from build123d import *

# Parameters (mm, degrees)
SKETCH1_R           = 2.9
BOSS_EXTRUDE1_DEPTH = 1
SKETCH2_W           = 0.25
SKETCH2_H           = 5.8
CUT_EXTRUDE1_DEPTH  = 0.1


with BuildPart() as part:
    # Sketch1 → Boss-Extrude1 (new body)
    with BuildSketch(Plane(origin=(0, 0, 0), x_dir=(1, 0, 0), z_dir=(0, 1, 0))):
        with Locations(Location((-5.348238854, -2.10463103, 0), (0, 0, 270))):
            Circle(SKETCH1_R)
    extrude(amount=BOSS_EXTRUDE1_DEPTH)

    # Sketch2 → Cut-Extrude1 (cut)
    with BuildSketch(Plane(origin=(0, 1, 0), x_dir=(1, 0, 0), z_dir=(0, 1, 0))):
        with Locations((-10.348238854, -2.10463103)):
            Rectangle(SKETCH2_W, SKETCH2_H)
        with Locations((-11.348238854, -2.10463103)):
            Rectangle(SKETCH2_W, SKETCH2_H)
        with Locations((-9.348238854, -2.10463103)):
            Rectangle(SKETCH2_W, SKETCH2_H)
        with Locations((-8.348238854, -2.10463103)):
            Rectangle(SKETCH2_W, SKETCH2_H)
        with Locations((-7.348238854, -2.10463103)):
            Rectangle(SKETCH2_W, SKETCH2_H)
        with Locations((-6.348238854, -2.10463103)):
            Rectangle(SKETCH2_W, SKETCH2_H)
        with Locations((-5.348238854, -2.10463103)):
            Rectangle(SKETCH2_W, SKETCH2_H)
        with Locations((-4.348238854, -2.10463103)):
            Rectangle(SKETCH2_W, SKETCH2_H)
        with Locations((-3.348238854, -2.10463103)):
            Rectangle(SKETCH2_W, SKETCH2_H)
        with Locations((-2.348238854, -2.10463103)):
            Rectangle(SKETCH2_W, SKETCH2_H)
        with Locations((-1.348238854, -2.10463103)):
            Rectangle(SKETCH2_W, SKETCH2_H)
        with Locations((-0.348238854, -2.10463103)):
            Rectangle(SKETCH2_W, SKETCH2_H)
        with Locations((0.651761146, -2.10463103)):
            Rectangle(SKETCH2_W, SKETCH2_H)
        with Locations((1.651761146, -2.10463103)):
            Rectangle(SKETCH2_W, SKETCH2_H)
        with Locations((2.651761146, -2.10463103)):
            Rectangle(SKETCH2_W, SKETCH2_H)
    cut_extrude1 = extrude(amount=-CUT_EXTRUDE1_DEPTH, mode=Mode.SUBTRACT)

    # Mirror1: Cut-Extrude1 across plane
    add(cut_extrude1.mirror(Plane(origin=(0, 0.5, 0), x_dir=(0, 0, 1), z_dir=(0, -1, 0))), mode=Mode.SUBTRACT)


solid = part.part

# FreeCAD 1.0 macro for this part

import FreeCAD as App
import Part
import Sketcher

doc = App.newDocument("Part")
params = doc.addObject("Spreadsheet::Sheet", "Params")
for row, (alias, value) in enumerate([
    ("sketch1_diameter", "5.8 mm"),
    ("pad1_length", "1 mm"),
    ("sketch2_height", "5.8 mm"),
    ("sketch2_width", "0.25 mm"),
    ("pocket1_length", "0.1 mm"),
], start=1):
    params.set(f"A{row}", alias)
    params.set(f"B{row}", "=" + value)
    params.setAlias(f"B{row}", alias)

body = doc.addObject("PartDesign::Body", "Body")

# Sketch on XZ plane
sketch1 = body.newObject("Sketcher::SketchObject", "Sketch")
sketch1.AttachmentSupport = (doc.getObject("XZ_Plane"), [""])
sketch1.MapMode = "FlatFace"
sketch1.addGeometry(Part.Circle(App.Vector(-5.3, 2.1, 0), App.Vector(0, 0, 1), 2.9), False)
sketch1.addConstraint([
    Sketcher.Constraint("Diameter", 0, 5.8),
    Sketcher.Constraint("DistanceX", 0, 3, -1, 1, 5.348239),
    Sketcher.Constraint("DistanceY", -1, 1, 0, 3, 2.104631),
])
sketch1.setExpression("Constraints[0]", "Params.sketch1_diameter")
pad1 = body.newObject("PartDesign::Pad", "Pad")
pad1.Profile = sketch1
pad1.setExpression("Length", "Params.pad1_length")
pad1.Reversed = True

# Sketch on XZ plane
sketch2 = body.newObject("Sketcher::SketchObject", "Sketch001")
sketch2.AttachmentSupport = (doc.getObject("XZ_Plane"), [""])
sketch2.MapMode = "FlatFace"
sketch2.AttachmentOffset = App.Placement(App.Vector(0, 0, -1), App.Rotation())
sketch2.addGeometry([
    Part.LineSegment(App.Vector(-10.47, -0.8, 0), App.Vector(-10.47, 5, 0)),  # 0
    Part.LineSegment(App.Vector(-10.47, 5, 0), App.Vector(-10.22, 5, 0)),  # 1
    Part.LineSegment(App.Vector(-10.22, 5, 0), App.Vector(-10.22, -0.8, 0)),  # 2
    Part.LineSegment(App.Vector(-10.22, -0.8, 0), App.Vector(-10.47, -0.8, 0)),  # 3
    Part.LineSegment(App.Vector(-11.47, -0.8, 0), App.Vector(-11.47, 5, 0)),  # 4
    Part.LineSegment(App.Vector(-11.47, 5, 0), App.Vector(-11.22, 5, 0)),  # 5
    Part.LineSegment(App.Vector(-11.22, 5, 0), App.Vector(-11.22, -0.8, 0)),  # 6
    Part.LineSegment(App.Vector(-11.22, -0.8, 0), App.Vector(-11.47, -0.8, 0)),  # 7
    Part.LineSegment(App.Vector(-9.47, -0.8, 0), App.Vector(-9.47, 5, 0)),  # 8
    Part.LineSegment(App.Vector(-9.47, 5, 0), App.Vector(-9.22, 5, 0)),  # 9
    Part.LineSegment(App.Vector(-9.22, 5, 0), App.Vector(-9.22, -0.8, 0)),  # 10
    Part.LineSegment(App.Vector(-9.22, -0.8, 0), App.Vector(-9.47, -0.8, 0)),  # 11
    Part.LineSegment(App.Vector(-8.47, -0.8, 0), App.Vector(-8.47, 5, 0)),  # 12
    Part.LineSegment(App.Vector(-8.47, 5, 0), App.Vector(-8.22, 5, 0)),  # 13
    Part.LineSegment(App.Vector(-8.22, 5, 0), App.Vector(-8.22, -0.8, 0)),  # 14
    Part.LineSegment(App.Vector(-8.22, -0.8, 0), App.Vector(-8.47, -0.8, 0)),  # 15
    Part.LineSegment(App.Vector(-7.47, -0.8, 0), App.Vector(-7.47, 5, 0)),  # 16
    Part.LineSegment(App.Vector(-7.47, 5, 0), App.Vector(-7.22, 5, 0)),  # 17
    Part.LineSegment(App.Vector(-7.22, 5, 0), App.Vector(-7.22, -0.8, 0)),  # 18
    Part.LineSegment(App.Vector(-7.22, -0.8, 0), App.Vector(-7.47, -0.8, 0)),  # 19
    Part.LineSegment(App.Vector(-6.47, -0.8, 0), App.Vector(-6.47, 5, 0)),  # 20
    Part.LineSegment(App.Vector(-6.47, 5, 0), App.Vector(-6.22, 5, 0)),  # 21
    Part.LineSegment(App.Vector(-6.22, 5, 0), App.Vector(-6.22, -0.8, 0)),  # 22
    Part.LineSegment(App.Vector(-6.22, -0.8, 0), App.Vector(-6.47, -0.8, 0)),  # 23
    Part.LineSegment(App.Vector(-5.47, -0.8, 0), App.Vector(-5.47, 5, 0)),  # 24
    Part.LineSegment(App.Vector(-5.47, 5, 0), App.Vector(-5.22, 5, 0)),  # 25
    Part.LineSegment(App.Vector(-5.22, 5, 0), App.Vector(-5.22, -0.8, 0)),  # 26
    Part.LineSegment(App.Vector(-5.22, -0.8, 0), App.Vector(-5.47, -0.8, 0)),  # 27
    Part.LineSegment(App.Vector(-4.47, -0.8, 0), App.Vector(-4.47, 5, 0)),  # 28
    Part.LineSegment(App.Vector(-4.47, 5, 0), App.Vector(-4.22, 5, 0)),  # 29
    Part.LineSegment(App.Vector(-4.22, 5, 0), App.Vector(-4.22, -0.8, 0)),  # 30
    Part.LineSegment(App.Vector(-4.22, -0.8, 0), App.Vector(-4.47, -0.8, 0)),  # 31
    Part.LineSegment(App.Vector(-3.47, -0.8, 0), App.Vector(-3.47, 5, 0)),  # 32
    Part.LineSegment(App.Vector(-3.47, 5, 0), App.Vector(-3.22, 5, 0)),  # 33
    Part.LineSegment(App.Vector(-3.22, 5, 0), App.Vector(-3.22, -0.8, 0)),  # 34
    Part.LineSegment(App.Vector(-3.22, -0.8, 0), App.Vector(-3.47, -0.8, 0)),  # 35
    Part.LineSegment(App.Vector(-2.47, -0.8, 0), App.Vector(-2.47, 5, 0)),  # 36
    Part.LineSegment(App.Vector(-2.47, 5, 0), App.Vector(-2.22, 5, 0)),  # 37
    Part.LineSegment(App.Vector(-2.22, 5, 0), App.Vector(-2.22, -0.8, 0)),  # 38
    Part.LineSegment(App.Vector(-2.22, -0.8, 0), App.Vector(-2.47, -0.8, 0)),  # 39
    Part.LineSegment(App.Vector(-1.47, -0.8, 0), App.Vector(-1.47, 5, 0)),  # 40
    Part.LineSegment(App.Vector(-1.47, 5, 0), App.Vector(-1.22, 5, 0)),  # 41
    Part.LineSegment(App.Vector(-1.22, 5, 0), App.Vector(-1.22, -0.8, 0)),  # 42
    Part.LineSegment(App.Vector(-1.22, -0.8, 0), App.Vector(-1.47, -0.8, 0)),  # 43
    Part.LineSegment(App.Vector(-0.47, -0.8, 0), App.Vector(-0.47, 5, 0)),  # 44
    Part.LineSegment(App.Vector(-0.47, 5, 0), App.Vector(-0.22, 5, 0)),  # 45
    Part.LineSegment(App.Vector(-0.22, 5, 0), App.Vector(-0.22, -0.8, 0)),  # 46
    Part.LineSegment(App.Vector(-0.22, -0.8, 0), App.Vector(-0.47, -0.8, 0)),  # 47
    Part.LineSegment(App.Vector(0.53, -0.8, 0), App.Vector(0.53, 5, 0)),  # 48
    Part.LineSegment(App.Vector(0.53, 5, 0), App.Vector(0.78, 5, 0)),  # 49
    Part.LineSegment(App.Vector(0.78, 5, 0), App.Vector(0.78, -0.8, 0)),  # 50
    Part.LineSegment(App.Vector(0.78, -0.8, 0), App.Vector(0.53, -0.8, 0)),  # 51
    Part.LineSegment(App.Vector(1.53, -0.8, 0), App.Vector(1.53, 5, 0)),  # 52
    Part.LineSegment(App.Vector(1.53, 5, 0), App.Vector(1.78, 5, 0)),  # 53
    Part.LineSegment(App.Vector(1.78, 5, 0), App.Vector(1.78, -0.8, 0)),  # 54
    Part.LineSegment(App.Vector(1.78, -0.8, 0), App.Vector(1.53, -0.8, 0)),  # 55
    Part.LineSegment(App.Vector(2.53, -0.8, 0), App.Vector(2.53, 5, 0)),  # 56
    Part.LineSegment(App.Vector(2.53, 5, 0), App.Vector(2.78, 5, 0)),  # 57
    Part.LineSegment(App.Vector(2.78, 5, 0), App.Vector(2.78, -0.8, 0)),  # 58
    Part.LineSegment(App.Vector(2.78, -0.8, 0), App.Vector(2.53, -0.8, 0)),  # 59
], False)
sketch2.addConstraint([
    Sketcher.Constraint("Coincident", 0, 2, 1, 1),
    Sketcher.Constraint("Coincident", 1, 2, 2, 1),
    Sketcher.Constraint("Coincident", 2, 2, 3, 1),
    Sketcher.Constraint("Coincident", 3, 2, 0, 1),
    Sketcher.Constraint("Coincident", 4, 2, 5, 1),
    Sketcher.Constraint("Coincident", 5, 2, 6, 1),
    Sketcher.Constraint("Coincident", 6, 2, 7, 1),
    Sketcher.Constraint("Coincident", 7, 2, 4, 1),
    Sketcher.Constraint("Coincident", 8, 2, 9, 1),
    Sketcher.Constraint("Coincident", 9, 2, 10, 1),
    Sketcher.Constraint("Coincident", 10, 2, 11, 1),
    Sketcher.Constraint("Coincident", 11, 2, 8, 1),
    Sketcher.Constraint("Coincident", 12, 2, 13, 1),
    Sketcher.Constraint("Coincident", 13, 2, 14, 1),
    Sketcher.Constraint("Coincident", 14, 2, 15, 1),
    Sketcher.Constraint("Coincident", 15, 2, 12, 1),
    Sketcher.Constraint("Coincident", 16, 2, 17, 1),
    Sketcher.Constraint("Coincident", 17, 2, 18, 1),
    Sketcher.Constraint("Coincident", 18, 2, 19, 1),
    Sketcher.Constraint("Coincident", 19, 2, 16, 1),
    Sketcher.Constraint("Coincident", 20, 2, 21, 1),
    Sketcher.Constraint("Coincident", 21, 2, 22, 1),
    Sketcher.Constraint("Coincident", 22, 2, 23, 1),
    Sketcher.Constraint("Coincident", 23, 2, 20, 1),
    Sketcher.Constraint("Coincident", 24, 2, 25, 1),
    Sketcher.Constraint("Coincident", 25, 2, 26, 1),
    Sketcher.Constraint("Coincident", 26, 2, 27, 1),
    Sketcher.Constraint("Coincident", 27, 2, 24, 1),
    Sketcher.Constraint("Coincident", 28, 2, 29, 1),
    Sketcher.Constraint("Coincident", 29, 2, 30, 1),
    Sketcher.Constraint("Coincident", 30, 2, 31, 1),
    Sketcher.Constraint("Coincident", 31, 2, 28, 1),
    Sketcher.Constraint("Coincident", 32, 2, 33, 1),
    Sketcher.Constraint("Coincident", 33, 2, 34, 1),
    Sketcher.Constraint("Coincident", 34, 2, 35, 1),
    Sketcher.Constraint("Coincident", 35, 2, 32, 1),
    Sketcher.Constraint("Coincident", 36, 2, 37, 1),
    Sketcher.Constraint("Coincident", 37, 2, 38, 1),
    Sketcher.Constraint("Coincident", 38, 2, 39, 1),
    Sketcher.Constraint("Coincident", 39, 2, 36, 1),
    Sketcher.Constraint("Coincident", 40, 2, 41, 1),
    Sketcher.Constraint("Coincident", 41, 2, 42, 1),
    Sketcher.Constraint("Coincident", 42, 2, 43, 1),
    Sketcher.Constraint("Coincident", 43, 2, 40, 1),
    Sketcher.Constraint("Coincident", 44, 2, 45, 1),
    Sketcher.Constraint("Coincident", 45, 2, 46, 1),
    Sketcher.Constraint("Coincident", 46, 2, 47, 1),
    Sketcher.Constraint("Coincident", 47, 2, 44, 1),
    Sketcher.Constraint("Coincident", 48, 2, 49, 1),
    Sketcher.Constraint("Coincident", 49, 2, 50, 1),
    Sketcher.Constraint("Coincident", 50, 2, 51, 1),
    Sketcher.Constraint("Coincident", 51, 2, 48, 1),
    Sketcher.Constraint("Coincident", 52, 2, 53, 1),
    Sketcher.Constraint("Coincident", 53, 2, 54, 1),
    Sketcher.Constraint("Coincident", 54, 2, 55, 1),
    Sketcher.Constraint("Coincident", 55, 2, 52, 1),
    Sketcher.Constraint("Coincident", 56, 2, 57, 1),
    Sketcher.Constraint("Coincident", 57, 2, 58, 1),
    Sketcher.Constraint("Coincident", 58, 2, 59, 1),
    Sketcher.Constraint("Coincident", 59, 2, 56, 1),
    Sketcher.Constraint("Vertical", 0),
    Sketcher.Constraint("Horizontal", 1),
    Sketcher.Constraint("Vertical", 2),
    Sketcher.Constraint("Horizontal", 3),
    Sketcher.Constraint("Vertical", 4),
    Sketcher.Constraint("Horizontal", 5),
    Sketcher.Constraint("Vertical", 6),
    Sketcher.Constraint("Horizontal", 7),
    Sketcher.Constraint("Vertical", 8),
    Sketcher.Constraint("Horizontal", 9),
    Sketcher.Constraint("Vertical", 10),
    Sketcher.Constraint("Horizontal", 11),
    Sketcher.Constraint("Vertical", 12),
    Sketcher.Constraint("Horizontal", 13),
    Sketcher.Constraint("Vertical", 14),
    Sketcher.Constraint("Horizontal", 15),
    Sketcher.Constraint("Vertical", 16),
    Sketcher.Constraint("Horizontal", 17),
    Sketcher.Constraint("Vertical", 18),
    Sketcher.Constraint("Horizontal", 19),
    Sketcher.Constraint("Vertical", 20),
    Sketcher.Constraint("Horizontal", 21),
    Sketcher.Constraint("Vertical", 22),
    Sketcher.Constraint("Horizontal", 23),
    Sketcher.Constraint("Vertical", 24),
    Sketcher.Constraint("Horizontal", 25),
    Sketcher.Constraint("Vertical", 26),
    Sketcher.Constraint("Horizontal", 27),
    Sketcher.Constraint("Vertical", 28),
    Sketcher.Constraint("Horizontal", 29),
    Sketcher.Constraint("Vertical", 30),
    Sketcher.Constraint("Horizontal", 31),
    Sketcher.Constraint("Vertical", 32),
    Sketcher.Constraint("Horizontal", 33),
    Sketcher.Constraint("Vertical", 34),
    Sketcher.Constraint("Horizontal", 35),
    Sketcher.Constraint("Vertical", 36),
    Sketcher.Constraint("Horizontal", 37),
    Sketcher.Constraint("Vertical", 38),
    Sketcher.Constraint("Horizontal", 39),
    Sketcher.Constraint("Vertical", 40),
    Sketcher.Constraint("Horizontal", 41),
    Sketcher.Constraint("Vertical", 42),
    Sketcher.Constraint("Horizontal", 43),
    Sketcher.Constraint("Vertical", 44),
    Sketcher.Constraint("Horizontal", 45),
    Sketcher.Constraint("Vertical", 46),
    Sketcher.Constraint("Horizontal", 47),
    Sketcher.Constraint("Vertical", 48),
    Sketcher.Constraint("Horizontal", 49),
    Sketcher.Constraint("Vertical", 50),
    Sketcher.Constraint("Horizontal", 51),
    Sketcher.Constraint("Vertical", 52),
    Sketcher.Constraint("Horizontal", 53),
    Sketcher.Constraint("Vertical", 54),
    Sketcher.Constraint("Horizontal", 55),
    Sketcher.Constraint("Vertical", 56),
    Sketcher.Constraint("Horizontal", 57),
    Sketcher.Constraint("Vertical", 58),
    Sketcher.Constraint("Horizontal", 59),
    Sketcher.Constraint("Horizontal", 1, 2, 4, 2),
    Sketcher.Constraint("Horizontal", 3, 2, 6, 2),
    Sketcher.Constraint("Horizontal", 5, 2, 8, 2),
    Sketcher.Constraint("Horizontal", 7, 2, 10, 2),
    Sketcher.Constraint("Horizontal", 9, 2, 12, 2),
    Sketcher.Constraint("Horizontal", 11, 2, 14, 2),
    Sketcher.Constraint("Horizontal", 13, 2, 16, 2),
    Sketcher.Constraint("Horizontal", 15, 2, 18, 2),
    Sketcher.Constraint("Horizontal", 17, 2, 20, 2),
    Sketcher.Constraint("Horizontal", 19, 2, 22, 2),
    Sketcher.Constraint("Horizontal", 21, 2, 24, 2),
    Sketcher.Constraint("Horizontal", 23, 2, 26, 2),
    Sketcher.Constraint("Horizontal", 25, 2, 28, 2),
    Sketcher.Constraint("Horizontal", 27, 2, 30, 2),
    Sketcher.Constraint("Horizontal", 29, 2, 32, 2),
    Sketcher.Constraint("Horizontal", 31, 2, 34, 2),
    Sketcher.Constraint("Horizontal", 33, 2, 36, 2),
    Sketcher.Constraint("Horizontal", 35, 2, 38, 2),
    Sketcher.Constraint("Horizontal", 37, 2, 40, 2),
    Sketcher.Constraint("Horizontal", 39, 2, 42, 2),
    Sketcher.Constraint("Horizontal", 41, 2, 44, 2),
    Sketcher.Constraint("Horizontal", 43, 2, 46, 2),
    Sketcher.Constraint("Horizontal", 45, 2, 48, 2),
    Sketcher.Constraint("Horizontal", 47, 2, 50, 2),
    Sketcher.Constraint("Horizontal", 49, 2, 52, 2),
    Sketcher.Constraint("Horizontal", 51, 2, 54, 2),
    Sketcher.Constraint("Horizontal", 53, 2, 56, 2),
    Sketcher.Constraint("Horizontal", 55, 2, 58, 2),
    Sketcher.Constraint("Equal", 3, 5),
    Sketcher.Constraint("Equal", 7, 9),
    Sketcher.Constraint("Equal", 11, 13),
    Sketcher.Constraint("Equal", 15, 17),
    Sketcher.Constraint("Equal", 19, 21),
    Sketcher.Constraint("Equal", 23, 25),
    Sketcher.Constraint("Equal", 27, 29),
    Sketcher.Constraint("Equal", 31, 33),
    Sketcher.Constraint("Equal", 35, 37),
    Sketcher.Constraint("Equal", 39, 41),
    Sketcher.Constraint("Equal", 43, 45),
    Sketcher.Constraint("Equal", 47, 49),
    Sketcher.Constraint("Equal", 51, 53),
    Sketcher.Constraint("Equal", 55, 57),
    Sketcher.Constraint("DistanceY", 0, 1, 0, 2, 5.8),
    Sketcher.Constraint("DistanceX", 4, 2, 0, 2, 1.0),
    Sketcher.Constraint("DistanceX", 0, 2, 8, 2, 1.0),
    Sketcher.Constraint("DistanceX", 8, 2, 12, 2, 1.0),
    Sketcher.Constraint("DistanceX", 12, 2, 16, 2, 1.0),
    Sketcher.Constraint("DistanceX", 16, 2, 20, 2, 1.0),
    Sketcher.Constraint("DistanceX", 20, 2, 24, 2, 1.0),
    Sketcher.Constraint("DistanceX", 24, 2, 28, 2, 1.0),
    Sketcher.Constraint("DistanceX", 28, 2, 32, 2, 1.0),
    Sketcher.Constraint("DistanceX", 32, 2, 36, 2, 1.0),
    Sketcher.Constraint("DistanceX", 36, 2, 40, 2, 1.0),
    Sketcher.Constraint("DistanceX", 40, 2, 44, 2, 1.0),
    Sketcher.Constraint("DistanceX", 44, 2, 48, 2, 1.0),
    Sketcher.Constraint("DistanceX", 48, 2, 52, 2, 1.0),
    Sketcher.Constraint("DistanceX", 52, 2, 56, 2, 1.0),
    Sketcher.Constraint("DistanceX", 1, 1, 1, 2, 0.25),
    Sketcher.Constraint("DistanceX", 0, 2, -1, 1, 10.473239),
    Sketcher.Constraint("DistanceY", -1, 1, 0, 2, 5.004631),
])
sketch2.setExpression("Constraints[162]", "Params.sketch2_height")
sketch2.setExpression("Constraints[177]", "Params.sketch2_width")
pocket1 = body.newObject("PartDesign::Pocket", "Pocket")
pocket1.Profile = sketch2
pocket1.setExpression("Length", "Params.pocket1_length")
pocket1.Reversed = True
doc.recompute()

datumplane = body.newObject("PartDesign::Plane", "DatumPlane")
datumplane.AttachmentSupport = (doc.getObject("XZ_Plane"), [""])
datumplane.MapMode = "FlatFace"
datumplane.AttachmentOffset = App.Placement(App.Vector(0, 0, -0.5), App.Rotation())
mirrored = body.newObject("PartDesign::Mirrored", "Mirrored")
mirrored.Originals = [pocket1]
mirrored.MirrorPlane = (datumplane, [""])
body.Tip = mirrored

doc.recompute()
